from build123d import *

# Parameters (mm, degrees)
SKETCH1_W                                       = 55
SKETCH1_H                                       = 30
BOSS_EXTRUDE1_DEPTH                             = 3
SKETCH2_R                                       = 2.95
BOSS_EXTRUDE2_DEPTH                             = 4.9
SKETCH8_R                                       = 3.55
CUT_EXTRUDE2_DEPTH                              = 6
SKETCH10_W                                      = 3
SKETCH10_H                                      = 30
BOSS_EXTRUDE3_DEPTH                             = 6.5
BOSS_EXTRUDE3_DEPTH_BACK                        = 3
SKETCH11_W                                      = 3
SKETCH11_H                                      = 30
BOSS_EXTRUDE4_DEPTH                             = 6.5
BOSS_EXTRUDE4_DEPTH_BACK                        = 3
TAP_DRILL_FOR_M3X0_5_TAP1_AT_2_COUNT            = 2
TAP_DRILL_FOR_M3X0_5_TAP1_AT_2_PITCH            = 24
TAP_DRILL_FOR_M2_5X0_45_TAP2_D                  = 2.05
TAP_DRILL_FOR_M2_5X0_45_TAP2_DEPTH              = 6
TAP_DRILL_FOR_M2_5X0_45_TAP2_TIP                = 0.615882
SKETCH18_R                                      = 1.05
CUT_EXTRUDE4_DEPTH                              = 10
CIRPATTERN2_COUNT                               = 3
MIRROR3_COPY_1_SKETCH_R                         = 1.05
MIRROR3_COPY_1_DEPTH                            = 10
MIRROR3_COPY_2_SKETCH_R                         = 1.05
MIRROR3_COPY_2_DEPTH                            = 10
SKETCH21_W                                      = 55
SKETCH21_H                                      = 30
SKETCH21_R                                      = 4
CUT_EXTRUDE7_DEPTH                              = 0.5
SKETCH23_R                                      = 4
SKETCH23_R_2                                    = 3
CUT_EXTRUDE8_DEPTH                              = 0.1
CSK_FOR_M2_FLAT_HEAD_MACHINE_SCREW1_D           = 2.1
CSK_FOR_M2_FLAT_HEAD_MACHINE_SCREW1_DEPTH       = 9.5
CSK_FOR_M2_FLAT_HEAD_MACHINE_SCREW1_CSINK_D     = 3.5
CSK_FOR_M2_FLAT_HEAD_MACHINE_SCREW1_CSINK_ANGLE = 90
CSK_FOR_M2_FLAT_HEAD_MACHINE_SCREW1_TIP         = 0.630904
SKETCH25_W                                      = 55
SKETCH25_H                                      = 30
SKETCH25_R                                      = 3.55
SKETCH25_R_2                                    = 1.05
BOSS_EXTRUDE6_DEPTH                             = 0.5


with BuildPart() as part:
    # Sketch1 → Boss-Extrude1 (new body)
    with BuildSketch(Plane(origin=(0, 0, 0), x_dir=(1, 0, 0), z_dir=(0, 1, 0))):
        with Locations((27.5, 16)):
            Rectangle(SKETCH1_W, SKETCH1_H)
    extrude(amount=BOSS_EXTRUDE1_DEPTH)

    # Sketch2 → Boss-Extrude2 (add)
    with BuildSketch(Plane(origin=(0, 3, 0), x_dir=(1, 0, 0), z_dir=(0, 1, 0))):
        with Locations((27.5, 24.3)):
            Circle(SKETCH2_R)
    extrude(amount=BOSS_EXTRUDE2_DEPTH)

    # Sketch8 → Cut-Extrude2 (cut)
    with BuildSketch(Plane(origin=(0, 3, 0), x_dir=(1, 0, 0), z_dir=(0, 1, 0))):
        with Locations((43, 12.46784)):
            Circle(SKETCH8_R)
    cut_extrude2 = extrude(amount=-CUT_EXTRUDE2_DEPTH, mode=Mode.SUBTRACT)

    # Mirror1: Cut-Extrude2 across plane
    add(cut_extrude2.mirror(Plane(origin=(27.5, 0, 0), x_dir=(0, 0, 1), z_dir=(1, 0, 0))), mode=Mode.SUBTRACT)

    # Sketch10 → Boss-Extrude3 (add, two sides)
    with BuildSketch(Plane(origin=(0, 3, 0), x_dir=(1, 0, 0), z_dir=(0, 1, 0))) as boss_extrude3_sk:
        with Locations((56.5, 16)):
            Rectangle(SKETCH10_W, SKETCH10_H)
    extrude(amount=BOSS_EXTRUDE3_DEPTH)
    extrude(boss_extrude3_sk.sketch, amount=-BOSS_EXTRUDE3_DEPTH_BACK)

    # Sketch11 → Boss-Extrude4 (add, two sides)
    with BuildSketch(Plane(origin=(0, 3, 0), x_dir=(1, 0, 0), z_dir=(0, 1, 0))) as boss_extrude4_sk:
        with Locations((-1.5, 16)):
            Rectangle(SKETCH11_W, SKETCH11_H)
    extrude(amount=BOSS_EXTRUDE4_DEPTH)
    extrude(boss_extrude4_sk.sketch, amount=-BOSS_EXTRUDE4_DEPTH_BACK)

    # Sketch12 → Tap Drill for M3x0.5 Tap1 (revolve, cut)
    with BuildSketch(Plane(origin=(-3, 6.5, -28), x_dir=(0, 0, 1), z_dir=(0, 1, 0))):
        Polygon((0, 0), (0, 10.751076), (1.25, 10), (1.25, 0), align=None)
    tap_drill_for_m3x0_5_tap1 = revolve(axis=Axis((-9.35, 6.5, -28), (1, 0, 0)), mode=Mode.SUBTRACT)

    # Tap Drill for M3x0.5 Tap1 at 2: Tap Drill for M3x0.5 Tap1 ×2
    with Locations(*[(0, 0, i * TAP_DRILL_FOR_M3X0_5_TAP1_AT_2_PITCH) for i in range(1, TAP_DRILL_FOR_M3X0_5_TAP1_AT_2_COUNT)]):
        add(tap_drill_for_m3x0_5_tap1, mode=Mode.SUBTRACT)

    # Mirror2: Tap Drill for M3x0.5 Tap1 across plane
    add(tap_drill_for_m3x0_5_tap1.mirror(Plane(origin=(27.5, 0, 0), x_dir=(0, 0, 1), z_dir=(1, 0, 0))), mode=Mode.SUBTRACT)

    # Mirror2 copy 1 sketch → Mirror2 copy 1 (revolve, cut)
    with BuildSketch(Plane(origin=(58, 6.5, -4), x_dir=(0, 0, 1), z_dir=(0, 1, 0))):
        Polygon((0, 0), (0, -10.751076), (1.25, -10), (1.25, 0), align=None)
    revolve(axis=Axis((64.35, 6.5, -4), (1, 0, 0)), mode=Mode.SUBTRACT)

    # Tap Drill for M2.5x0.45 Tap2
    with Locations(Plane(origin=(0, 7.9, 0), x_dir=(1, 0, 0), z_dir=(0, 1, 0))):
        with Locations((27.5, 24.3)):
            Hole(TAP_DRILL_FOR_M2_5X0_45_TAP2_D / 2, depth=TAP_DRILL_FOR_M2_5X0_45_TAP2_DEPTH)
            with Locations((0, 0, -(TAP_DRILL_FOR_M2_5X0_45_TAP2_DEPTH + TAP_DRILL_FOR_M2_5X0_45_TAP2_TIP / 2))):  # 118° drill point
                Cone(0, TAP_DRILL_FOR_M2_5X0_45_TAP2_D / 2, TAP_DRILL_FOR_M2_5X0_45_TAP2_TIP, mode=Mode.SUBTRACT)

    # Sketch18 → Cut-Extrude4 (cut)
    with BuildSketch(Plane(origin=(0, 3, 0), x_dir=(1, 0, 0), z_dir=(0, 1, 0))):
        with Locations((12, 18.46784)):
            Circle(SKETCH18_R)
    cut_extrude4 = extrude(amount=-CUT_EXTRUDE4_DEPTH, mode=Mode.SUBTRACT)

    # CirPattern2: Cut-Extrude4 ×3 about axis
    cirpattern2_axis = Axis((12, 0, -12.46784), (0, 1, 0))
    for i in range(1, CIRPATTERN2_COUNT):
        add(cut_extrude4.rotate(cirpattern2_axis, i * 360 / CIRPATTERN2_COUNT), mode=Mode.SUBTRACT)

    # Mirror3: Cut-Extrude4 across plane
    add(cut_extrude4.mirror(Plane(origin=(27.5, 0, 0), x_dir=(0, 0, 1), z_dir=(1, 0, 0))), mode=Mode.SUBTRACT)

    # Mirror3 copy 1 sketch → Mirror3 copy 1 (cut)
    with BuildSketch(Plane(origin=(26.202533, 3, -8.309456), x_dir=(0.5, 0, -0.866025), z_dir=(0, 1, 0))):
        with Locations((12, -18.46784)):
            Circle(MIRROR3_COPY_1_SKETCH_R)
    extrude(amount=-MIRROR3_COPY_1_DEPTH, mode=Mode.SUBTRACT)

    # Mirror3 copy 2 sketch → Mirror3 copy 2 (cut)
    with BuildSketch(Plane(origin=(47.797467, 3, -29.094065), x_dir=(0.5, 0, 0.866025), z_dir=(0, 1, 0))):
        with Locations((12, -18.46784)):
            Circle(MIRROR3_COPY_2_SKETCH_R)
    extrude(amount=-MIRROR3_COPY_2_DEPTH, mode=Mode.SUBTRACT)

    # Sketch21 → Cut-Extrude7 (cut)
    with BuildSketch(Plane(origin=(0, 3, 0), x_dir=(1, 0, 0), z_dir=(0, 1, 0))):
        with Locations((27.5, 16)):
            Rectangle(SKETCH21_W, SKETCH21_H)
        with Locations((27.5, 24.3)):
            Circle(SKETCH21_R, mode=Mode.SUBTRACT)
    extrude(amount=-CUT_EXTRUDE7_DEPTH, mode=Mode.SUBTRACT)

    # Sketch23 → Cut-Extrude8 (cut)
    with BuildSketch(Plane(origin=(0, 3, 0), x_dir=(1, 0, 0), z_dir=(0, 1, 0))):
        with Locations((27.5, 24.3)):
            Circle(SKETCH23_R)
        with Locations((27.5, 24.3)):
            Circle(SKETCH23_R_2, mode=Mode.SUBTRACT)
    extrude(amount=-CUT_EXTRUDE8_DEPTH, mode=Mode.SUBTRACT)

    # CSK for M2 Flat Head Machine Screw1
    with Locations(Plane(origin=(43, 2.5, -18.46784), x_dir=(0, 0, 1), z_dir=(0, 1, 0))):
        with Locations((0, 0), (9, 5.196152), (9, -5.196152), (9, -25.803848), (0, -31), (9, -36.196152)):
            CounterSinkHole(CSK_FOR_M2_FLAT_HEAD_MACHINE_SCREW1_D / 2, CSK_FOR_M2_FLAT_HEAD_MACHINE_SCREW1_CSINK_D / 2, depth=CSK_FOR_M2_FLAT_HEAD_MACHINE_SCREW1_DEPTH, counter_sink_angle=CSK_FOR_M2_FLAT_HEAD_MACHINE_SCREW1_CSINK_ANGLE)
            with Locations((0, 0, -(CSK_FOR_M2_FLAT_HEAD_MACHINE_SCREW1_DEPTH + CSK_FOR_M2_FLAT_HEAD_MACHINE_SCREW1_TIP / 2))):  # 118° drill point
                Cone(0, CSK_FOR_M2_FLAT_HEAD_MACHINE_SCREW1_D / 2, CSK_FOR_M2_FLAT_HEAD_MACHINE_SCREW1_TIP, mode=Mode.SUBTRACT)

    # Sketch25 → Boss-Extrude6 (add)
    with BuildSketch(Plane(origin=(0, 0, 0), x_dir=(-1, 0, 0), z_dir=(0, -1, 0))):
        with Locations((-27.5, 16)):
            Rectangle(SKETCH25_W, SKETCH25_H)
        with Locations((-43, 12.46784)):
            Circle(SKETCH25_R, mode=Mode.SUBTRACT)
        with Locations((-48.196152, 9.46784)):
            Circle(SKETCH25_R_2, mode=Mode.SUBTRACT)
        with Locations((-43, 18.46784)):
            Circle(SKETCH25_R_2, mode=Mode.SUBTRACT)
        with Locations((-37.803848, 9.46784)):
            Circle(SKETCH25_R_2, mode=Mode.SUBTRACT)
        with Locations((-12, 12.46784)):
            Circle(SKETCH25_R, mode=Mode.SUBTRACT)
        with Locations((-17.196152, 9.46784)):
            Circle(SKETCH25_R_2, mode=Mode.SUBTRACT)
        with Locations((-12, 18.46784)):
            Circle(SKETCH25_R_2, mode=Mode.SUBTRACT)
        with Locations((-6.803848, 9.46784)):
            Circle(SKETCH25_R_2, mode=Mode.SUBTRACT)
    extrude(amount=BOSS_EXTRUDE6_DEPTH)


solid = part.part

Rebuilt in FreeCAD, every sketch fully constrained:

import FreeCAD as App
import Part
import Sketcher
Q = App.Units.Quantity


def add_polygon(sketch, points):
    """Adds a closed chain of lines whose ends are joined by coincident constraints."""
    first, n = sketch.GeometryCount, len(points)
    for a, b in zip(points, points[1:] + points[:1]):
        sketch.addGeometry(Part.LineSegment(App.Vector(*a, 0), App.Vector(*b, 0)), False)
    for i in range(n):
        sketch.addConstraint(Sketcher.Constraint("Coincident", first + i, 2, first + (i + 1) % n, 1))

doc = App.newDocument("Part")
params = doc.addObject("Spreadsheet::Sheet", "Params")
for row, (alias, value) in enumerate([
    ("sketch1_width", "55 mm"),
    ("sketch1_height", "30 mm"),
    ("pad1_length", "3 mm"),
    ("sketch2_diameter", "5.9 mm"),
    ("pad2_length", "4.9 mm"),
    ("sketch3_diameter", "7.1 mm"),
    ("pocket1_length", "6 mm"),
    ("sketch4_width", "3 mm"),
    ("sketch4_height", "30 mm"),
    ("pad3_length", "6.5 mm"),
    ("pad3_length2", "3 mm"),
    ("sketch5_width", "3 mm"),
    ("sketch5_height", "30 mm"),
    ("pad4_length", "6.5 mm"),
    ("pad4_length2", "3 mm"),
    ("sketch6_width", "10 mm"),
    ("sketch6_height", "1.25 mm"),
    ("groove_angle", "360 deg"),
    ("linearpattern_pitch", "24 mm"),
    ("sketch7_width", "10 mm"),
    ("sketch7_height", "1.25 mm"),
    ("groove2_angle", "360 deg"),
    ("sketch8_diameter", "2.05 mm"),
    ("hole_diameter", "2.05 mm"),
    ("hole_depth", "6 mm"),
    ("sketch9_diameter", "2.1 mm"),
    ("pocket2_length", "10 mm"),
    ("sketch10_diameter", "2.1 mm"),
    ("pocket3_length", "10 mm"),
    ("sketch11_diameter", "2.1 mm"),
    ("pocket4_length", "10 mm"),
    ("sketch12_diameter", "8 mm"),
    ("sketch12_width", "55 mm"),
    ("sketch12_height", "30 mm"),
    ("pocket5_length", "0.5 mm"),
    ("sketch13_diameter", "8 mm"),
    ("sketch13_diameter2", "6 mm"),
    ("pocket6_length", "0.1 mm"),
    ("sketch14_diameter", "2.1 mm"),
    ("hole2_diameter", "2.1 mm"),
    ("hole2_depth", "9.5 mm"),
    ("hole2_csink_diameter", "3.5 mm"),
    ("sketch15_diameter", "2.1 mm"),
    ("sketch15_diameter2", "7.1 mm"),
    ("sketch15_width", "55 mm"),
    ("sketch15_height", "30 mm"),
    ("pad5_length", "0.5 mm"),
], start=1):
    params.set(f"A{row}", alias)
    params.set(f"B{row}", "=" + value)
    params.setAlias(f"B{row}", alias)

body = doc.addObject("PartDesign::Body", "Body")

# Sketch on XZ plane
sketch1 = body.newObject("Sketcher::SketchObject", "Sketch")
sketch1.AttachmentSupport = (doc.getObject("XZ_Plane"), [""])
sketch1.MapMode = "FlatFace"
add_polygon(sketch1, [(0, -31), (0, -1), (55, -1), (55, -31)])  # lines 0-3
sketch1.addConstraint(Sketcher.Constraint("Vertical", 0))
sketch1.addConstraint(Sketcher.Constraint("Horizontal", 1))
sketch1.addConstraint(Sketcher.Constraint("Vertical", 2))
sketch1.addConstraint(Sketcher.Constraint("Horizontal", 3))
sketch1.addConstraint(Sketcher.Constraint("PointOnObject", 0, 2, -2))
sketch1.addConstraint(Sketcher.Constraint("DistanceX", 1, 1, 1, 2, 55.0))
sketch1.addConstraint(Sketcher.Constraint("DistanceY", 0, 1, 0, 2, 30.0))
sketch1.addConstraint(Sketcher.Constraint("DistanceY", 0, 2, -1, 1, 1.0))
sketch1.setExpression("Constraints[9]", "Params.sketch1_width")
sketch1.setExpression("Constraints[10]", "Params.sketch1_height")
pad1 = body.newObject("PartDesign::Pad", "Pad")
pad1.Profile = sketch1
pad1.setExpression("Length", "Params.pad1_length")
pad1.Reversed = True

# Sketch on XZ plane
sketch2 = body.newObject("Sketcher::SketchObject", "Sketch001")
sketch2.AttachmentSupport = (doc.getObject("XZ_Plane"), [""])
sketch2.MapMode = "FlatFace"
sketch2.AttachmentOffset = App.Placement(App.Vector(0, 0, -3), App.Rotation())
sketch2.addGeometry(Part.Circle(App.Vector(27.5, -24.3, 0), App.Vector(0, 0, 1), 3), False)
sketch2.addConstraint(Sketcher.Constraint("Diameter", 0, 5.9))
sketch2.addConstraint(Sketcher.Constraint("DistanceX", -1, 1, 0, 3, 27.5))
sketch2.addConstraint(Sketcher.Constraint("DistanceY", 0, 3, -1, 1, 24.3))
sketch2.setExpression("Constraints[0]", "Params.sketch2_diameter")
pad2 = body.newObject("PartDesign::Pad", "Pad001")
pad2.Profile = sketch2
pad2.setExpression("Length", "Params.pad2_length")
pad2.Reversed = True

# Sketch on XZ plane
sketch3 = body.newObject("Sketcher::SketchObject", "Sketch002")
sketch3.AttachmentSupport = (doc.getObject("XZ_Plane"), [""])
sketch3.MapMode = "FlatFace"
sketch3.AttachmentOffset = App.Placement(App.Vector(0, 0, -3), App.Rotation())
sketch3.addGeometry(Part.Circle(App.Vector(43, -12.5, 0), App.Vector(0, 0, 1), 3.5), False)
sketch3.addConstraint(Sketcher.Constraint("Diameter", 0, 7.1))
sketch3.addConstraint(Sketcher.Constraint("DistanceX", -1, 1, 0, 3, 43.0))
sketch3.addConstraint(Sketcher.Constraint("DistanceY", 0, 3, -1, 1, 12.46784))
sketch3.setExpression("Constraints[0]", "Params.sketch3_diameter")
pocket1 = body.newObject("PartDesign::Pocket", "Pocket")
pocket1.Profile = sketch3
pocket1.setExpression("Length", "Params.pocket1_length")
pocket1.Reversed = True
doc.recompute()

datumplane = body.newObject("PartDesign::Plane", "DatumPlane")
datumplane.AttachmentSupport = (doc.getObject("YZ_Plane"), [""])
datumplane.MapMode = "FlatFace"
datumplane.AttachmentOffset = App.Placement(App.Vector(0, 0, 27.5), App.Rotation())
mirrored = body.newObject("PartDesign::Mirrored", "Mirrored")
mirrored.Originals = [pocket1]
mirrored.MirrorPlane = (datumplane, [""])
body.Tip = mirrored

# Sketch on XZ plane
sketch4 = body.newObject("Sketcher::SketchObject", "Sketch003")
sketch4.AttachmentSupport = (doc.getObject("XZ_Plane"), [""])
sketch4.MapMode = "FlatFace"
sketch4.AttachmentOffset = App.Placement(App.Vector(0, 0, -3), App.Rotation())
add_polygon(sketch4, [(55, -31), (55, -1), (58, -1), (58, -31)])  # lines 0-3
sketch4.addConstraint(Sketcher.Constraint("Vertical", 0))
sketch4.addConstraint(Sketcher.Constraint("Horizontal", 1))
sketch4.addConstraint(Sketcher.Constraint("Vertical", 2))
sketch4.addConstraint(Sketcher.Constraint("Horizontal", 3))
sketch4.addConstraint(Sketcher.Constraint("DistanceX", 1, 1, 1, 2, 3.0))
sketch4.addConstraint(Sketcher.Constraint("DistanceY", 0, 1, 0, 2, 30.0))
sketch4.addConstraint(Sketcher.Constraint("DistanceX", -1, 1, 0, 2, 55.0))
sketch4.addConstraint(Sketcher.Constraint("DistanceY", 0, 2, -1, 1, 1.0))
sketch4.setExpression("Constraints[8]", "Params.sketch4_width")
sketch4.setExpression("Constraints[9]", "Params.sketch4_height")
pad3 = body.newObject("PartDesign::Pad", "Pad002")
pad3.Profile = sketch4
pad3.Type = "TwoLengths"
pad3.setExpression("Length", "Params.pad3_length")
pad3.setExpression("Length2", "Params.pad3_length2")
pad3.Reversed = True

# Sketch on XZ plane
sketch5 = body.newObject("Sketcher::SketchObject", "Sketch004")
sketch5.AttachmentSupport = (doc.getObject("XZ_Plane"), [""])
sketch5.MapMode = "FlatFace"
sketch5.AttachmentOffset = App.Placement(App.Vector(0, 0, -3), App.Rotation())
add_polygon(sketch5, [(-3, -31), (-3, -1), (0, -1), (0, -31)])  # lines 0-3
sketch5.addConstraint(Sketcher.Constraint("Vertical", 0))
sketch5.addConstraint(Sketcher.Constraint("Horizontal", 1))
sketch5.addConstraint(Sketcher.Constraint("Vertical", 2))
sketch5.addConstraint(Sketcher.Constraint("Horizontal", 3))
sketch5.addConstraint(Sketcher.Constraint("PointOnObject", 1, 2, -2))
sketch5.addConstraint(Sketcher.Constraint("DistanceX", 1, 1, 1, 2, 3.0))
sketch5.addConstraint(Sketcher.Constraint("DistanceY", 0, 1, 0, 2, 30.0))
sketch5.addConstraint(Sketcher.Constraint("DistanceY", 0, 2, -1, 1, 1.0))
sketch5.setExpression("Constraints[9]", "Params.sketch5_width")
sketch5.setExpression("Constraints[10]", "Params.sketch5_height")
pad4 = body.newObject("PartDesign::Pad", "Pad003")
pad4.Profile = sketch5
pad4.Type = "TwoLengths"
pad4.setExpression("Length", "Params.pad4_length")
pad4.setExpression("Length2", "Params.pad4_length2")
pad4.Reversed = True

# Sketch on XZ plane
sketch6 = body.newObject("Sketcher::SketchObject", "Sketch005")
sketch6.AttachmentSupport = (doc.getObject("XZ_Plane"), [""])
sketch6.MapMode = "FlatFace"
sketch6.AttachmentOffset = App.Placement(App.Vector(0, 0, -6.5), App.Rotation())
add_polygon(sketch6, [(7.8, -28), (-3, -28), (-3, -26.8), (7, -26.8)])  # lines 0-3
sketch6.addGeometry(Part.LineSegment(App.Vector(-3, -28, 0), App.Vector(7.8, -28, 0)), True)  # axis
sketch6.addConstraint(Sketcher.Constraint("Horizontal", 0))
sketch6.addConstraint(Sketcher.Constraint("Vertical", 1))
sketch6.addConstraint(Sketcher.Constraint("Horizontal", 2))
sketch6.addConstraint(Sketcher.Constraint("Horizontal", 4))
sketch6.addConstraint(Sketcher.Constraint("Coincident", 4, 1, 0, 2))
sketch6.addConstraint(Sketcher.Constraint("Equal", 0, 4))
sketch6.addConstraint(Sketcher.Constraint("DistanceX", 2, 1, 2, 2, 10.0))
sketch6.addConstraint(Sketcher.Constraint("Angle", 3, Q("-58.999992 deg")))
sketch6.addConstraint(Sketcher.Constraint("DistanceX", 0, 2, -1, 1, 3.0))
sketch6.addConstraint(Sketcher.Constraint("DistanceY", 0, 2, -1, 1, 28.0))
sketch6.addConstraint(Sketcher.Constraint("DistanceY", 1, 1, 1, 2, 1.25))
sketch6.setExpression("Constraints[10]", "Params.sketch6_width")
sketch6.setExpression("Constraints[14]", "Params.sketch6_height")
groove = body.newObject("PartDesign::Groove", "Groove")
groove.Profile = sketch6
groove.ReferenceAxis = (sketch6, ["Axis0"])
groove.setExpression("Angle", "Params.groove_angle")
doc.recompute()

linearpattern = body.newObject("PartDesign::LinearPattern", "LinearPattern")
linearpattern.Originals = [groove]
linearpattern.Direction = (doc.getObject("Z_Axis"), [""])
linearpattern.Mode = "offset"
linearpattern.setExpression("Offset", "Params.linearpattern_pitch")
linearpattern.Occurrences = 2
body.Tip = linearpattern
doc.recompute()

datumplane2 = body.newObject("PartDesign::Plane", "DatumPlane001")
datumplane2.AttachmentSupport = (doc.getObject("YZ_Plane"), [""])
datumplane2.MapMode = "FlatFace"
datumplane2.AttachmentOffset = App.Placement(App.Vector(0, 0, 27.5), App.Rotation())
mirrored2 = body.newObject("PartDesign::Mirrored", "Mirrored001")
mirrored2.Originals = [groove]
mirrored2.MirrorPlane = (datumplane2, [""])
body.Tip = mirrored2

# Sketch on XZ plane
sketch7 = body.newObject("Sketcher::SketchObject", "Sketch006")
sketch7.AttachmentSupport = (doc.getObject("XZ_Plane"), [""])
sketch7.MapMode = "FlatFace"
sketch7.AttachmentOffset = App.Placement(App.Vector(0, 0, -6.5), App.Rotation())
add_polygon(sketch7, [(58, -4), (47.2, -4), (48, -2.8), (58, -2.8)])  # lines 0-3
sketch7.addGeometry(Part.LineSegment(App.Vector(47.2, -4, 0), App.Vector(58, -4, 0)), True)  # axis
sketch7.addConstraint(Sketcher.Constraint("Horizontal", 0))
sketch7.addConstraint(Sketcher.Constraint("Horizontal", 2))
sketch7.addConstraint(Sketcher.Constraint("Vertical", 3))
sketch7.addConstraint(Sketcher.Constraint("Horizontal", 4))
sketch7.addConstraint(Sketcher.Constraint("Coincident", 4, 1, 0, 2))
sketch7.addConstraint(Sketcher.Constraint("Vertical", 2, 2, 4, 2))
sketch7.addConstraint(Sketcher.Constraint("DistanceX", 2, 1, 2, 2, 10.0))
sketch7.addConstraint(Sketcher.Constraint("Angle", 1, Q("58.999992 deg")))
sketch7.addConstraint(Sketcher.Constraint("DistanceY", 0, 2, -1, 1, 4.0))
sketch7.addConstraint(Sketcher.Constraint("DistanceX", -1, 1, 1, 2, 48.0))
sketch7.addConstraint(Sketcher.Constraint("DistanceY", 3, 2, 3, 1, 1.25))
sketch7.setExpression("Constraints[10]", "Params.sketch7_width")
sketch7.setExpression("Constraints[14]", "Params.sketch7_height")
groove2 = body.newObject("PartDesign::Groove", "Groove001")
groove2.Profile = sketch7
groove2.ReferenceAxis = (sketch7, ["Axis0"])
groove2.setExpression("Angle", "Params.groove2_angle")

# Sketch on XZ plane
sketch8 = body.newObject("Sketcher::SketchObject", "Sketch007")
sketch8.AttachmentSupport = (doc.getObject("XZ_Plane"), [""])
sketch8.MapMode = "FlatFace"
sketch8.AttachmentOffset = App.Placement(App.Vector(0, 0, -7.9), App.Rotation())
sketch8.addGeometry(Part.Circle(App.Vector(27.5, -24.3, 0), App.Vector(0, 0, 1), 1), False)
sketch8.addConstraint(Sketcher.Constraint("Diameter", 0, 2.05))
sketch8.addConstraint(Sketcher.Constraint("DistanceX", -1, 1, 0, 3, 27.5))
sketch8.addConstraint(Sketcher.Constraint("DistanceY", 0, 3, -1, 1, 24.3))
sketch8.setExpression("Constraints[0]", "Params.sketch8_diameter")
doc.recompute()
hole = body.newObject("PartDesign::Hole", "Hole")
hole.Profile = sketch8
hole.ThreadType = "None"
hole.setExpression("Diameter", "Params.hole_diameter")
hole.DepthType = "Dimension"
hole.setExpression("Depth", "Params.hole_depth")
hole.DrillPoint = "Angled"
hole.DrillPointAngle = 118
hole.Reversed = True

# Sketch on XZ plane
sketch9 = body.newObject("Sketcher::SketchObject", "Sketch008")
sketch9.AttachmentSupport = (doc.getObject("XZ_Plane"), [""])
sketch9.MapMode = "FlatFace"
sketch9.AttachmentOffset = App.Placement(App.Vector(0, 0, -3), App.Rotation())
sketch9.addGeometry(Part.Circle(App.Vector(12, -18.5, 0), App.Vector(0, 0, 1), 1.1), False)
sketch9.addConstraint(Sketcher.Constraint("Diameter", 0, 2.1))
sketch9.addConstraint(Sketcher.Constraint("DistanceX", -1, 1, 0, 3, 12.0))
sketch9.addConstraint(Sketcher.Constraint("DistanceY", 0, 3, -1, 1, 18.46784))
sketch9.setExpression("Constraints[0]", "Params.sketch9_diameter")
pocket2 = body.newObject("PartDesign::Pocket", "Pocket001")
pocket2.Profile = sketch9
pocket2.setExpression("Length", "Params.pocket2_length")
pocket2.Reversed = True
doc.recompute()

datumline = body.newObject("PartDesign::Line", "DatumLine")
datumline.Placement = App.Placement(App.Vector(12, 0, -12.46784), App.Rotation(App.Vector(0, 0, 1), App.Vector(0, 1, 0)))
polarpattern = body.newObject("PartDesign::PolarPattern", "PolarPattern")
polarpattern.Originals = [pocket2]
polarpattern.Axis = (datumline, [""])
polarpattern.Angle = 360
polarpattern.Occurrences = 3
body.Tip = polarpattern
doc.recompute()

datumplane3 = body.newObject("PartDesign::Plane", "DatumPlane002")
datumplane3.AttachmentSupport = (doc.getObject("YZ_Plane"), [""])
datumplane3.MapMode = "FlatFace"
datumplane3.AttachmentOffset = App.Placement(App.Vector(0, 0, 27.5), App.Rotation())
mirrored3 = body.newObject("PartDesign::Mirrored", "Mirrored002")
mirrored3.Originals = [pocket2]
mirrored3.MirrorPlane = (datumplane3, [""])
body.Tip = mirrored3

# Sketch on XZ plane
sketch10 = body.newObject("Sketcher::SketchObject", "Sketch009")
sketch10.AttachmentSupport = (doc.getObject("XZ_Plane"), [""])
sketch10.MapMode = "FlatFace"
sketch10.AttachmentOffset = App.Placement(App.Vector(0, 0, -3), App.Rotation())
sketch10.addGeometry(Part.Circle(App.Vector(48.2, -9.5, 0), App.Vector(0, 0, 1), 1.1), False)
sketch10.addConstraint(Sketcher.Constraint("Diameter", 0, 2.1))
sketch10.addConstraint(Sketcher.Constraint("DistanceX", -1, 1, 0, 3, 48.196152))
sketch10.addConstraint(Sketcher.Constraint("DistanceY", 0, 3, -1, 1, 9.467836))
sketch10.setExpression("Constraints[0]", "Params.sketch10_diameter")
pocket3 = body.newObject("PartDesign::Pocket", "Pocket002")
pocket3.Profile = sketch10
pocket3.setExpression("Length", "Params.pocket3_length")
pocket3.Reversed = True

# Sketch on XZ plane
sketch11 = body.newObject("Sketcher::SketchObject", "Sketch010")
sketch11.AttachmentSupport = (doc.getObject("XZ_Plane"), [""])
sketch11.MapMode = "FlatFace"
sketch11.AttachmentOffset = App.Placement(App.Vector(0, 0, -3), App.Rotation())
sketch11.addGeometry(Part.Circle(App.Vector(37.8, -9.5, 0), App.Vector(0, 0, 1), 1.1), False)
sketch11.addConstraint(Sketcher.Constraint("Diameter", 0, 2.1))
sketch11.addConstraint(Sketcher.Constraint("DistanceY", 0, 3, -1, 1, 9.467838))
sketch11.addConstraint(Sketcher.Constraint("DistanceX", -1, 1, 0, 3, 37.803852))
sketch11.setExpression("Constraints[0]", "Params.sketch11_diameter")
pocket4 = body.newObject("PartDesign::Pocket", "Pocket003")
pocket4.Profile = sketch11
pocket4.setExpression("Length", "Params.pocket4_length")
pocket4.Reversed = True

# Sketch on XZ plane
sketch12 = body.newObject("Sketcher::SketchObject", "Sketch011")
sketch12.AttachmentSupport = (doc.getObject("XZ_Plane"), [""])
sketch12.MapMode = "FlatFace"
sketch12.AttachmentOffset = App.Placement(App.Vector(0, 0, -3), App.Rotation())
add_polygon(sketch12, [(0, -31), (0, -1), (55, -1), (55, -31)])  # lines 0-3
sketch12.addGeometry(Part.Circle(App.Vector(27.5, -24.3, 0), App.Vector(0, 0, 1), 4), False)  # 4
sketch12.addConstraint(Sketcher.Constraint("Vertical", 0))
sketch12.addConstraint(Sketcher.Constraint("Horizontal", 1))
sketch12.addConstraint(Sketcher.Constraint("Vertical", 2))
sketch12.addConstraint(Sketcher.Constraint("Horizontal", 3))
sketch12.addConstraint(Sketcher.Constraint("PointOnObject", 0, 2, -2))
sketch12.addConstraint(Sketcher.Constraint("Diameter", 4, 8.0))
sketch12.addConstraint(Sketcher.Constraint("DistanceX", 1, 1, 1, 2, 55.0))
sketch12.addConstraint(Sketcher.Constraint("DistanceY", 0, 1, 0, 2, 30.0))
sketch12.addConstraint(Sketcher.Constraint("DistanceY", 0, 2, -1, 1, 1.0))
sketch12.addConstraint(Sketcher.Constraint("DistanceX", -1, 1, 4, 3, 27.5))
sketch12.addConstraint(Sketcher.Constraint("DistanceY", 4, 3, -1, 1, 24.3))
sketch12.setExpression("Constraints[9]", "Params.sketch12_diameter")
sketch12.setExpression("Constraints[10]", "Params.sketch12_width")
sketch12.setExpression("Constraints[11]", "Params.sketch12_height")
pocket5 = body.newObject("PartDesign::Pocket", "Pocket004")
pocket5.Profile = sketch12
pocket5.setExpression("Length", "Params.pocket5_length")
pocket5.Reversed = True

# Sketch on XZ plane
sketch13 = body.newObject("Sketcher::SketchObject", "Sketch012")
sketch13.AttachmentSupport = (doc.getObject("XZ_Plane"), [""])
sketch13.MapMode = "FlatFace"
sketch13.AttachmentOffset = App.Placement(App.Vector(0, 0, -3), App.Rotation())
sketch13.addGeometry(Part.Circle(App.Vector(27.5, -24.3, 0), App.Vector(0, 0, 1), 4), False)
sketch13.addGeometry(Part.Circle(App.Vector(27.5, -24.3, 0), App.Vector(0, 0, 1), 3), False)
sketch13.addConstraint(Sketcher.Constraint("Coincident", 1, 3, 0, 3))
sketch13.addConstraint(Sketcher.Constraint("Diameter", 0, 8.0))
sketch13.addConstraint(Sketcher.Constraint("Diameter", 1, 6.0))
sketch13.addConstraint(Sketcher.Constraint("DistanceX", -1, 1, 0, 3, 27.5))
sketch13.addConstraint(Sketcher.Constraint("DistanceY", 0, 3, -1, 1, 24.3))
sketch13.setExpression("Constraints[1]", "Params.sketch13_diameter")
sketch13.setExpression("Constraints[2]", "Params.sketch13_diameter2")
pocket6 = body.newObject("PartDesign::Pocket", "Pocket005")
pocket6.Profile = sketch13
pocket6.setExpression("Length", "Params.pocket6_length")
pocket6.Reversed = True

# Sketch on XZ plane
sketch14 = body.newObject("Sketcher::SketchObject", "Sketch013")
sketch14.AttachmentSupport = (doc.getObject("XZ_Plane"), [""])
sketch14.MapMode = "FlatFace"
sketch14.AttachmentOffset = App.Placement(App.Vector(0, 0, -2.5), App.Rotation())
sketch14.addGeometry(Part.Circle(App.Vector(43, -18.5, 0), App.Vector(0, 0, 1), 1.1), False)
sketch14.addGeometry(Part.Circle(App.Vector(48.2, -9.5, 0), App.Vector(0, 0, 1), 1.1), False)
sketch14.addGeometry(Part.Circle(App.Vector(37.8, -9.5, 0), App.Vector(0, 0, 1), 1.1), False)
sketch14.addGeometry(Part.Circle(App.Vector(17.2, -9.5, 0), App.Vector(0, 0, 1), 1.1), False)
sketch14.addGeometry(Part.Circle(App.Vector(12, -18.5, 0), App.Vector(0, 0, 1), 1.1), False)
sketch14.addGeometry(Part.Circle(App.Vector(6.8, -9.5, 0), App.Vector(0, 0, 1), 1.1), False)
sketch14.addConstraint(Sketcher.Constraint("Equal", 0, 1))
sketch14.addConstraint(Sketcher.Constraint("Equal", 1, 2))
sketch14.addConstraint(Sketcher.Constraint("Equal", 2, 3))
sketch14.addConstraint(Sketcher.Constraint("Equal", 3, 4))
sketch14.addConstraint(Sketcher.Constraint("Equal", 4, 5))
sketch14.addConstraint(Sketcher.Constraint("Horizontal", 1, 3, 2, 3))
sketch14.addConstraint(Sketcher.Constraint("Horizontal", 2, 3, 3, 3))
sketch14.addConstraint(Sketcher.Constraint("Horizontal", 0, 3, 4, 3))
sketch14.addConstraint(Sketcher.Constraint("Horizontal", 3, 3, 5, 3))
sketch14.addConstraint(Sketcher.Constraint("Diameter", 0, 2.1))
sketch14.addConstraint(Sketcher.Constraint("DistanceX", -1, 1, 0, 3, 43.0))
sketch14.addConstraint(Sketcher.Constraint("DistanceX", -1, 1, 4, 3, 12.0))
sketch14.addConstraint(Sketcher.Constraint("DistanceY", 0, 3, 1, 3, 9.0))
sketch14.addConstraint(Sketcher.Constraint("DistanceX", 3, 3, 1, 3, 31.0))
sketch14.addConstraint(Sketcher.Constraint("DistanceX", 5, 3, 2, 3, 31.0))
sketch14.addConstraint(Sketcher.Constraint("DistanceY", 0, 3, -1, 1, 18.46784))
sketch14.addConstraint(Sketcher.Constraint("DistanceX", -1, 1, 1, 3, 48.196152))
sketch14.addConstraint(Sketcher.Constraint("DistanceX", -1, 1, 2, 3, 37.803848))
sketch14.setExpression("Constraints[9]", "Params.sketch14_diameter")
doc.recompute()
hole2 = body.newObject("PartDesign::Hole", "Hole001")
hole2.Profile = sketch14
hole2.ThreadType = "None"
hole2.setExpression("Diameter", "Params.hole2_diameter")
hole2.DepthType = "Dimension"
hole2.setExpression("Depth", "Params.hole2_depth")
hole2.DrillPoint = "Angled"
hole2.DrillPointAngle = 118
hole2.HoleCutType = "Countersink"
hole2.setExpression("HoleCutDiameter", "Params.hole2_csink_diameter")
hole2.HoleCutCountersinkAngle = 90
hole2.Reversed = True

# Sketch on XZ plane
sketch15 = body.newObject("Sketcher::SketchObject", "Sketch014")
sketch15.AttachmentSupport = (doc.getObject("XZ_Plane"), [""])
sketch15.MapMode = "FlatFace"
add_polygon(sketch15, [(55, -31), (55, -1), (0, -1), (0, -31)])  # lines 0-3
sketch15.addGeometry(Part.Circle(App.Vector(48.2, -9.5, 0), App.Vector(0, 0, 1), 1.1), False)  # 4
sketch15.addGeometry(Part.Circle(App.Vector(37.8, -9.5, 0), App.Vector(0, 0, 1), 1.1), False)  # 5
sketch15.addGeometry(Part.Circle(App.Vector(43, -12.5, 0), App.Vector(0, 0, 1), 3.5), False)  # 6
sketch15.addGeometry(Part.Circle(App.Vector(17.2, -9.5, 0), App.Vector(0, 0, 1), 1.1), False)  # 7
sketch15.addGeometry(Part.Circle(App.Vector(6.8, -9.5, 0), App.Vector(0, 0, 1), 1.1), False)  # 8
sketch15.addGeometry(Part.Circle(App.Vector(12, -12.5, 0), App.Vector(0, 0, 1), 3.5), False)  # 9
sketch15.addGeometry(Part.Circle(App.Vector(43, -18.5, 0), App.Vector(0, 0, 1), 1.1), False)  # 10
sketch15.addGeometry(Part.Circle(App.Vector(12, -18.5, 0), App.Vector(0, 0, 1), 1.1), False)  # 11
sketch15.addConstraint(Sketcher.Constraint("Vertical", 0))
sketch15.addConstraint(Sketcher.Constraint("Horizontal", 1))
sketch15.addConstraint(Sketcher.Constraint("Vertical", 2))
sketch15.addConstraint(Sketcher.Constraint("Horizontal", 3))
sketch15.addConstraint(Sketcher.Constraint("Equal", 4, 5))
sketch15.addConstraint(Sketcher.Constraint("Equal", 5, 7))
sketch15.addConstraint(Sketcher.Constraint("Equal", 7, 8))
sketch15.addConstraint(Sketcher.Constraint("Equal", 6, 9))
sketch15.addConstraint(Sketcher.Constraint("Equal", 8, 10))
sketch15.addConstraint(Sketcher.Constraint("Equal", 10, 11))
sketch15.addConstraint(Sketcher.Constraint("PointOnObject", 1, 2, -2))
sketch15.addConstraint(Sketcher.Constraint("Horizontal", 4, 3, 5, 3))
sketch15.addConstraint(Sketcher.Constraint("Horizontal", 5, 3, 7, 3))
sketch15.addConstraint(Sketcher.Constraint("Horizontal", 7, 3, 8, 3))
sketch15.addConstraint(Sketcher.Constraint("Horizontal", 6, 3, 9, 3))
sketch15.addConstraint(Sketcher.Constraint("Horizontal", 10, 3, 11, 3))
sketch15.addConstraint(Sketcher.Constraint("Vertical", 6, 3, 10, 3))
sketch15.addConstraint(Sketcher.Constraint("Vertical", 9, 3, 11, 3))
sketch15.addConstraint(Sketcher.Constraint("Diameter", 4, 2.1))
sketch15.addConstraint(Sketcher.Constraint("Diameter", 6, 7.1))
sketch15.addConstraint(Sketcher.Constraint("DistanceX", 1, 2, 1, 1, 55.0))
sketch15.addConstraint(Sketcher.Constraint("DistanceY", 0, 1, 0, 2, 30.0))
sketch15.addConstraint(Sketcher.Constraint("DistanceX", -1, 1, 6, 3, 43.0))
sketch15.addConstraint(Sketcher.Constraint("DistanceX", -1, 1, 9, 3, 12.0))
sketch15.addConstraint(Sketcher.Constraint("DistanceY", 0, 2, -1, 1, 1.0))
sketch15.addConstraint(Sketcher.Constraint("DistanceY", 6, 3, 4, 3, 3.0))
sketch15.addConstraint(Sketcher.Constraint("DistanceX", 7, 3, 4, 3, 31.0))
sketch15.addConstraint(Sketcher.Constraint("DistanceX", 8, 3, 5, 3, 31.0))
sketch15.addConstraint(Sketcher.Constraint("DistanceY", 10, 3, 6, 3, 6.0))
sketch15.addConstraint(Sketcher.Constraint("DistanceX", -1, 1, 4, 3, 48.196152))
sketch15.addConstraint(Sketcher.Constraint("DistanceY", 4, 3, -1, 1, 9.46784))
sketch15.addConstraint(Sketcher.Constraint("DistanceX", -1, 1, 5, 3, 37.803848))
sketch15.setExpression("Constraints[22]", "Params.sketch15_diameter")
sketch15.setExpression("Constraints[23]", "Params.sketch15_diameter2")
sketch15.setExpression("Constraints[24]", "Params.sketch15_width")
sketch15.setExpression("Constraints[25]", "Params.sketch15_height")
pad5 = body.newObject("PartDesign::Pad", "Pad004")
pad5.Profile = sketch15
pad5.setExpression("Length", "Params.pad5_length")

doc.recompute()
